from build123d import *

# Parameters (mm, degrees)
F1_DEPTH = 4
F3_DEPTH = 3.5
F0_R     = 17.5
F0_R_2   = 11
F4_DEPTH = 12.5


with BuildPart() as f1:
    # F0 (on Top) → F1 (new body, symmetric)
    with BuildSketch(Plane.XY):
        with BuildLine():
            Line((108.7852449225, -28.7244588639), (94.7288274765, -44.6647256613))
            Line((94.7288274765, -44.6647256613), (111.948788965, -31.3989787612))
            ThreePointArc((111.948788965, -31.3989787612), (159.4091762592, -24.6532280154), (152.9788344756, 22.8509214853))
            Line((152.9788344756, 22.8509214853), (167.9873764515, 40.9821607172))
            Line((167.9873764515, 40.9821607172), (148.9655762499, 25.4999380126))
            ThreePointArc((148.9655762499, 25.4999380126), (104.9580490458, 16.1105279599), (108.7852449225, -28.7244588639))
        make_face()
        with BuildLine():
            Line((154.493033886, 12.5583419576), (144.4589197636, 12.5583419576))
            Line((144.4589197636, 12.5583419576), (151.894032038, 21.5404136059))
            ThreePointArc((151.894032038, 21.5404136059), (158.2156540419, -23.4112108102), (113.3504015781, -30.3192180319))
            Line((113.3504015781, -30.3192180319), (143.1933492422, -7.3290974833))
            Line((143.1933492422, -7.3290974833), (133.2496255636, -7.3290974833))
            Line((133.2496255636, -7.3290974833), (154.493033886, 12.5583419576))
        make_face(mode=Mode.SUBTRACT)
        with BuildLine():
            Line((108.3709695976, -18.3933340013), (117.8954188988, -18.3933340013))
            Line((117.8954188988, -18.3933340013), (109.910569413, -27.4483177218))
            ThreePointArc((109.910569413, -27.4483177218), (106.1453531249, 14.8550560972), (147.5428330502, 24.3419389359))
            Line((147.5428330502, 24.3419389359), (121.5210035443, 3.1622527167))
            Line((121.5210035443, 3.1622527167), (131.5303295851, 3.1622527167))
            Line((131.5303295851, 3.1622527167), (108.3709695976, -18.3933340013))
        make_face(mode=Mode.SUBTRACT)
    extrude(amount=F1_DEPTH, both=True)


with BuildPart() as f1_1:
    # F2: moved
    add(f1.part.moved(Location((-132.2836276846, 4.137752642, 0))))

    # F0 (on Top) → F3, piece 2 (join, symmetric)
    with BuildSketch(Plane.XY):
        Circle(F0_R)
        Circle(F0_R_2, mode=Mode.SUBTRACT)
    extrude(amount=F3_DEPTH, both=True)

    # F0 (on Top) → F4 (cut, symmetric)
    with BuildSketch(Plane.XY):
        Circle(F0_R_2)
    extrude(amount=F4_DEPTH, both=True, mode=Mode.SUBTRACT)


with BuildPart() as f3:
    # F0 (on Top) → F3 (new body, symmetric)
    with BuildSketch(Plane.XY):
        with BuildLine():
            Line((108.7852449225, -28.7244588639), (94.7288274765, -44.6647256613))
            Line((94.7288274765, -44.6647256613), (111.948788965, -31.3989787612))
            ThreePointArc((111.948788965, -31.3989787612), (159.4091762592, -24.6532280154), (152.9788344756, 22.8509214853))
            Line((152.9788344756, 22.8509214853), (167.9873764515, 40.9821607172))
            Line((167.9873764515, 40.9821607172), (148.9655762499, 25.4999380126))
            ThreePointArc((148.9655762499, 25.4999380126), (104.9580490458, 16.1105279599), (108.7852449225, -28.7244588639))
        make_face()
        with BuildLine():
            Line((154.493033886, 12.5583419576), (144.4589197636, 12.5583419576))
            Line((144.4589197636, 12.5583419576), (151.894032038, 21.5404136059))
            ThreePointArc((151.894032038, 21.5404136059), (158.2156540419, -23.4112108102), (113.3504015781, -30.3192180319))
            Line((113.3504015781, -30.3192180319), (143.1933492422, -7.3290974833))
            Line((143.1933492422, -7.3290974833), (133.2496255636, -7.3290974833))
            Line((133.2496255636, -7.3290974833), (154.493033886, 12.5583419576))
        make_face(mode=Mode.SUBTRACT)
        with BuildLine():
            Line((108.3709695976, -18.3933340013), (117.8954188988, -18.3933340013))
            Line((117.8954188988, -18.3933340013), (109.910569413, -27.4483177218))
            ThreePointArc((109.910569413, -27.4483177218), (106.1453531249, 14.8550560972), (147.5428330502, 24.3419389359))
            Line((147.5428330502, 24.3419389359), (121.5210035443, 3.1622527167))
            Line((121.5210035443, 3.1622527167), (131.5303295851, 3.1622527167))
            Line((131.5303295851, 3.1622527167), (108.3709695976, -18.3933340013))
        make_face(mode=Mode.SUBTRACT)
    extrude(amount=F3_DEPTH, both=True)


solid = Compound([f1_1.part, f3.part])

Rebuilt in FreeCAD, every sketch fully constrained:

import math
import FreeCAD as App
import Part
import Sketcher
from FreeCAD import Vector

doc = App.newDocument("Part")
params = doc.addObject("Spreadsheet::Sheet", "Params")
for row, (alias, value) in enumerate([
    ("sketch1_radius", "34.01 mm"),
    ("sketch1_radius2", "32.310001 mm"),
    ("pad1_length", "8 mm"),
    ("sketch2_diameter", "35 mm"),
    ("sketch2_diameter2", "22 mm"),
    ("pad2_length", "7 mm"),
    ("sketch3_diameter", "22 mm"),
    ("pocket1_length", "25 mm"),
    ("sketch4_radius", "34.01 mm"),
    ("sketch4_radius2", "32.310001 mm"),
    ("pad3_length", "7 mm"),
], start=1):
    params.set(f"A{row}", alias)
    params.set(f"B{row}", "=" + value)
    params.setAlias(f"B{row}", alias)

body = doc.addObject("PartDesign::Body", "Body")

sketch1 = doc.addObject("Sketcher::SketchObject", "Sketch")
body.addObject(sketch1)
sketch1.AttachmentSupport = (doc.XY_Plane, [""])
sketch1.MapMode = "FlatFace"
sketch1.addGeometry([
    Part.LineSegment(Vector(109, -29, 0), Vector(95, -45, 0)),
    Part.LineSegment(Vector(95, -45, 0), Vector(112, -31, 0)),
    Part.ArcOfCircle(Part.Circle(Vector(132, -4, 0), Vector(0, 0, 1), 34), math.radians(-127), math.radians(53)),
    Part.LineSegment(Vector(153, 23, 0), Vector(168, 41, 0)),
    Part.LineSegment(Vector(168, 41, 0), Vector(149, 25, 0)),
    Part.ArcOfCircle(Part.Circle(Vector(132, -4, 0), Vector(0, 0, 1), 34), math.radians(61), math.radians(226)),
    Part.LineSegment(Vector(133, -7, 0), Vector(154, 13, 0)),
    Part.LineSegment(Vector(154, 13, 0), Vector(144, 13, 0)),
    Part.LineSegment(Vector(144, 13, 0), Vector(152, 22, 0)),
    Part.ArcOfCircle(Part.Circle(Vector(132, -4, 0), Vector(0, 0, 1), 32), math.radians(-126), math.radians(53)),
    Part.LineSegment(Vector(113, -30, 0), Vector(143, -7, 0)),
    Part.LineSegment(Vector(143, -7, 0), Vector(133, -7, 0)),
    Part.LineSegment(Vector(132, 3, 0), Vector(108, -18, 0)),
    Part.LineSegment(Vector(108, -18, 0), Vector(118, -18, 0)),
    Part.LineSegment(Vector(118, -18, 0), Vector(110, -27, 0)),
    Part.ArcOfCircle(Part.Circle(Vector(132, -4, 0), Vector(0, 0, 1), 32), math.radians(62), math.radians(226)),
    Part.LineSegment(Vector(148, 24, 0), Vector(122, 3, 0)),
    Part.LineSegment(Vector(122, 3, 0), Vector(132, 3, 0)),
], False)
sketch1.addConstraint([
    Sketcher.Constraint("Coincident", 0, 2, 1, 1),
    Sketcher.Constraint("Coincident", 1, 2, 2, 1),
    Sketcher.Constraint("Coincident", 2, 2, 3, 1),
    Sketcher.Constraint("Coincident", 3, 2, 4, 1),
    Sketcher.Constraint("Coincident", 4, 2, 5, 1),
    Sketcher.Constraint("Coincident", 5, 2, 0, 1),
    Sketcher.Constraint("Coincident", 6, 2, 7, 1),
    Sketcher.Constraint("Coincident", 7, 2, 8, 1),
    Sketcher.Constraint("Coincident", 8, 2, 9, 2),
    Sketcher.Constraint("Coincident", 9, 1, 10, 1),
    Sketcher.Constraint("Coincident", 10, 2, 11, 1),
    Sketcher.Constraint("Coincident", 11, 2, 6, 1),
    Sketcher.Constraint("Coincident", 12, 2, 13, 1),
    Sketcher.Constraint("Coincident", 13, 2, 14, 1),
    Sketcher.Constraint("Coincident", 14, 2, 15, 2),
    Sketcher.Constraint("Coincident", 15, 1, 16, 1),
    Sketcher.Constraint("Coincident", 16, 2, 17, 1),
    Sketcher.Constraint("Coincident", 17, 2, 12, 1),
    Sketcher.Constraint("Horizontal", 7),
    Sketcher.Constraint("Horizontal", 11),
    Sketcher.Constraint("Horizontal", 13),
    Sketcher.Constraint("Horizontal", 17),
    Sketcher.Constraint("Coincident", 5, 3, 2, 3),
    Sketcher.Constraint("Coincident", 9, 3, 2, 3),
    Sketcher.Constraint("Coincident", 15, 3, 2, 3),
    Sketcher.Constraint("Equal", 2, 5),
    Sketcher.Constraint("Equal", 9, 15),
    Sketcher.Constraint("Parallel", 3, 8),
    Sketcher.Constraint("Parallel", 1, 10),
    Sketcher.Constraint("Parallel", 0, 14),
    Sketcher.Constraint("Parallel", 4, 16),
    Sketcher.Constraint("Radius", 2, 34.01),
    Sketcher.Constraint("Radius", 9, 32.310001),
    Sketcher.Constraint("DistanceX", 8, 2, 6, 2, 2.599002),
    Sketcher.Constraint("DistanceY", 15, 1, 4, 2, 1.157999),
    Sketcher.Constraint("DistanceX", 15, 1, 2, 2, 5.436001),
    Sketcher.Constraint("Distance", 6, 29.099702),
    Sketcher.Constraint("DistanceX", 13, 1, 13, 2, 9.524449),
    Sketcher.Constraint("DistanceX", -1, 1, 9, 1, 113.350402),
    Sketcher.Constraint("DistanceX", 0, 2, 2, 3, 37.5548),
    Sketcher.Constraint("DistanceY", 1, 2, 2, 2, 54.2499),
    Sketcher.Constraint("DistanceX", 4, 2, 3, 2, 19.0218),
    Sketcher.Constraint("DistanceX", 2, 2, 6, 2, 1.514199),
    Sketcher.Constraint("DistanceY", 9, 1, 14, 2, 2.8709),
    Sketcher.Constraint("DistanceX", 12, 2, 14, 2, 1.5396),
    Sketcher.Constraint("DistanceX", 17, 2, 2, 3, 0.753298),
    Sketcher.Constraint("Distance", 1, 21.737229),
    Sketcher.Constraint("Distance", 4, 24.52607),
    Sketcher.Constraint("Distance", 10, 37.67157),
    Sketcher.Constraint("Distance", 14, 12.072719),
    Sketcher.Constraint("DistanceX", 7, 2, 7, 1, 10.034114),
    Sketcher.Constraint("DistanceX", 11, 2, 11, 1, 9.943724),
    Sketcher.Constraint("DistanceX", 17, 1, 17, 2, 10.009326),
    Sketcher.Constraint("DistanceX", -1, 1, 1, 2, 111.948789),
    Sketcher.Constraint("DistanceY", 1, 2, -1, 1, 31.398979),
])
sketch1.setExpression("Constraints[31]", "Params.sketch1_radius")
sketch1.setExpression("Constraints[32]", "Params.sketch1_radius2")
pad1 = doc.addObject("PartDesign::Pad", "Pad")
body.addObject(pad1)
pad1.Profile = sketch1
pad1.setExpression("Length", "Params.pad1_length")
pad1.Midplane = True
body2 = doc.addObject("PartDesign::Body", "Body001")
doc.recompute()

body.Placement = App.Placement(Vector(-132.283628, 4.137753, 0), App.Rotation(Vector(0, 0, 1), 0))
boolean = doc.addObject("PartDesign::Boolean", "Boolean")
body2.addObject(boolean)
boolean.Type = "Fuse"
boolean.addObjects([body])

sketch2 = doc.addObject("Sketcher::SketchObject", "Sketch001")
body2.addObject(sketch2)
sketch2.AttachmentSupport = (doc.getObject("XY_Plane001"), [""])
sketch2.MapMode = "FlatFace"
sketch2.addGeometry([
    Part.Circle(Vector(0, 0, 0), Vector(0, 0, 1), 18),
    Part.Circle(Vector(0, 0, 0), Vector(0, 0, 1), 11),
], False)
sketch2.addConstraint([
    Sketcher.Constraint("Coincident", 0, 3, -1, 1),
    Sketcher.Constraint("Coincident", 1, 3, -1, 1),
    Sketcher.Constraint("Diameter", 0, 35.0),
    Sketcher.Constraint("Diameter", 1, 22.0),
])
sketch2.setExpression("Constraints[2]", "Params.sketch2_diameter")
sketch2.setExpression("Constraints[3]", "Params.sketch2_diameter2")
pad2 = doc.addObject("PartDesign::Pad", "Pad001")
body2.addObject(pad2)
pad2.Profile = sketch2
pad2.setExpression("Length", "Params.pad2_length")
pad2.Midplane = True

sketch3 = doc.addObject("Sketcher::SketchObject", "Sketch002")
body2.addObject(sketch3)
sketch3.AttachmentSupport = (doc.getObject("XY_Plane001"), [""])
sketch3.MapMode = "FlatFace"
sketch3.addGeometry(Part.Circle(Vector(0, 0, 0), Vector(0, 0, 1), 11), False)
sketch3.addConstraint([
    Sketcher.Constraint("Coincident", 0, 3, -1, 1),
    Sketcher.Constraint("Diameter", 0, 22.0),
])
sketch3.setExpression("Constraints[1]", "Params.sketch3_diameter")
pocket1 = doc.addObject("PartDesign::Pocket", "Pocket")
body2.addObject(pocket1)
pocket1.Profile = sketch3
pocket1.setExpression("Length", "Params.pocket1_length")
pocket1.Midplane = True
body3 = doc.addObject("PartDesign::Body", "Body002")

sketch4 = doc.addObject("Sketcher::SketchObject", "Sketch003")
body3.addObject(sketch4)
sketch4.AttachmentSupport = (doc.getObject("XY_Plane002"), [""])
sketch4.MapMode = "FlatFace"
sketch4.addGeometry([
    Part.LineSegment(Vector(109, -29, 0), Vector(95, -45, 0)),
    Part.LineSegment(Vector(95, -45, 0), Vector(112, -31, 0)),
    Part.ArcOfCircle(Part.Circle(Vector(132, -4, 0), Vector(0, 0, 1), 34), math.radians(-127), math.radians(53)),
    Part.LineSegment(Vector(153, 23, 0), Vector(168, 41, 0)),
    Part.LineSegment(Vector(168, 41, 0), Vector(149, 25, 0)),
    Part.ArcOfCircle(Part.Circle(Vector(132, -4, 0), Vector(0, 0, 1), 34), math.radians(61), math.radians(226)),
    Part.LineSegment(Vector(133, -7, 0), Vector(154, 13, 0)),
    Part.LineSegment(Vector(154, 13, 0), Vector(144, 13, 0)),
    Part.LineSegment(Vector(144, 13, 0), Vector(152, 22, 0)),
    Part.ArcOfCircle(Part.Circle(Vector(132, -4, 0), Vector(0, 0, 1), 32), math.radians(-126), math.radians(53)),
    Part.LineSegment(Vector(113, -30, 0), Vector(143, -7, 0)),
    Part.LineSegment(Vector(143, -7, 0), Vector(133, -7, 0)),
    Part.LineSegment(Vector(132, 3, 0), Vector(108, -18, 0)),
    Part.LineSegment(Vector(108, -18, 0), Vector(118, -18, 0)),
    Part.LineSegment(Vector(118, -18, 0), Vector(110, -27, 0)),
    Part.ArcOfCircle(Part.Circle(Vector(132, -4, 0), Vector(0, 0, 1), 32), math.radians(62), math.radians(226)),
    Part.LineSegment(Vector(148, 24, 0), Vector(122, 3, 0)),
    Part.LineSegment(Vector(122, 3, 0), Vector(132, 3, 0)),
], False)
sketch4.addConstraint([
    Sketcher.Constraint("Coincident", 0, 2, 1, 1),
    Sketcher.Constraint("Coincident", 1, 2, 2, 1),
    Sketcher.Constraint("Coincident", 2, 2, 3, 1),
    Sketcher.Constraint("Coincident", 3, 2, 4, 1),
    Sketcher.Constraint("Coincident", 4, 2, 5, 1),
    Sketcher.Constraint("Coincident", 5, 2, 0, 1),
    Sketcher.Constraint("Coincident", 6, 2, 7, 1),
    Sketcher.Constraint("Coincident", 7, 2, 8, 1),
    Sketcher.Constraint("Coincident", 8, 2, 9, 2),
    Sketcher.Constraint("Coincident", 9, 1, 10, 1),
    Sketcher.Constraint("Coincident", 10, 2, 11, 1),
    Sketcher.Constraint("Coincident", 11, 2, 6, 1),
    Sketcher.Constraint("Coincident", 12, 2, 13, 1),
    Sketcher.Constraint("Coincident", 13, 2, 14, 1),
    Sketcher.Constraint("Coincident", 14, 2, 15, 2),
    Sketcher.Constraint("Coincident", 15, 1, 16, 1),
    Sketcher.Constraint("Coincident", 16, 2, 17, 1),
    Sketcher.Constraint("Coincident", 17, 2, 12, 1),
    Sketcher.Constraint("Horizontal", 7),
    Sketcher.Constraint("Horizontal", 11),
    Sketcher.Constraint("Horizontal", 13),
    Sketcher.Constraint("Horizontal", 17),
    Sketcher.Constraint("Coincident", 5, 3, 2, 3),
    Sketcher.Constraint("Coincident", 9, 3, 2, 3),
    Sketcher.Constraint("Coincident", 15, 3, 2, 3),
    Sketcher.Constraint("Equal", 2, 5),
    Sketcher.Constraint("Equal", 9, 15),
    Sketcher.Constraint("Parallel", 3, 8),
    Sketcher.Constraint("Parallel", 1, 10),
    Sketcher.Constraint("Parallel", 0, 14),
    Sketcher.Constraint("Parallel", 4, 16),
    Sketcher.Constraint("Radius", 2, 34.01),
    Sketcher.Constraint("Radius", 9, 32.310001),
    Sketcher.Constraint("DistanceX", 8, 2, 6, 2, 2.599002),
    Sketcher.Constraint("DistanceY", 15, 1, 4, 2, 1.157999),
    Sketcher.Constraint("DistanceX", 15, 1, 2, 2, 5.436001),
    Sketcher.Constraint("Distance", 6, 29.099702),
    Sketcher.Constraint("DistanceX", 13, 1, 13, 2, 9.524449),
    Sketcher.Constraint("DistanceX", -1, 1, 9, 1, 113.350402),
    Sketcher.Constraint("DistanceX", 0, 2, 2, 3, 37.5548),
    Sketcher.Constraint("DistanceY", 1, 2, 2, 2, 54.2499),
    Sketcher.Constraint("DistanceX", 4, 2, 3, 2, 19.0218),
    Sketcher.Constraint("DistanceX", 2, 2, 6, 2, 1.514199),
    Sketcher.Constraint("DistanceY", 9, 1, 14, 2, 2.8709),
    Sketcher.Constraint("DistanceX", 12, 2, 14, 2, 1.5396),
    Sketcher.Constraint("DistanceX", 17, 2, 2, 3, 0.753298),
    Sketcher.Constraint("Distance", 1, 21.737229),
    Sketcher.Constraint("Distance", 4, 24.52607),
    Sketcher.Constraint("Distance", 10, 37.67157),
    Sketcher.Constraint("Distance", 14, 12.072719),
    Sketcher.Constraint("DistanceX", 7, 2, 7, 1, 10.034114),
    Sketcher.Constraint("DistanceX", 11, 2, 11, 1, 9.943724),
    Sketcher.Constraint("DistanceX", 17, 1, 17, 2, 10.009326),
    Sketcher.Constraint("DistanceX", -1, 1, 1, 2, 111.948789),
    Sketcher.Constraint("DistanceY", 1, 2, -1, 1, 31.398979),
])
sketch4.setExpression("Constraints[31]", "Params.sketch4_radius")
sketch4.setExpression("Constraints[32]", "Params.sketch4_radius2")
pad3 = doc.addObject("PartDesign::Pad", "Pad002")
body3.addObject(pad3)
pad3.Profile = sketch4
pad3.setExpression("Length", "Params.pad3_length")
pad3.Midplane = True

doc.recompute()
